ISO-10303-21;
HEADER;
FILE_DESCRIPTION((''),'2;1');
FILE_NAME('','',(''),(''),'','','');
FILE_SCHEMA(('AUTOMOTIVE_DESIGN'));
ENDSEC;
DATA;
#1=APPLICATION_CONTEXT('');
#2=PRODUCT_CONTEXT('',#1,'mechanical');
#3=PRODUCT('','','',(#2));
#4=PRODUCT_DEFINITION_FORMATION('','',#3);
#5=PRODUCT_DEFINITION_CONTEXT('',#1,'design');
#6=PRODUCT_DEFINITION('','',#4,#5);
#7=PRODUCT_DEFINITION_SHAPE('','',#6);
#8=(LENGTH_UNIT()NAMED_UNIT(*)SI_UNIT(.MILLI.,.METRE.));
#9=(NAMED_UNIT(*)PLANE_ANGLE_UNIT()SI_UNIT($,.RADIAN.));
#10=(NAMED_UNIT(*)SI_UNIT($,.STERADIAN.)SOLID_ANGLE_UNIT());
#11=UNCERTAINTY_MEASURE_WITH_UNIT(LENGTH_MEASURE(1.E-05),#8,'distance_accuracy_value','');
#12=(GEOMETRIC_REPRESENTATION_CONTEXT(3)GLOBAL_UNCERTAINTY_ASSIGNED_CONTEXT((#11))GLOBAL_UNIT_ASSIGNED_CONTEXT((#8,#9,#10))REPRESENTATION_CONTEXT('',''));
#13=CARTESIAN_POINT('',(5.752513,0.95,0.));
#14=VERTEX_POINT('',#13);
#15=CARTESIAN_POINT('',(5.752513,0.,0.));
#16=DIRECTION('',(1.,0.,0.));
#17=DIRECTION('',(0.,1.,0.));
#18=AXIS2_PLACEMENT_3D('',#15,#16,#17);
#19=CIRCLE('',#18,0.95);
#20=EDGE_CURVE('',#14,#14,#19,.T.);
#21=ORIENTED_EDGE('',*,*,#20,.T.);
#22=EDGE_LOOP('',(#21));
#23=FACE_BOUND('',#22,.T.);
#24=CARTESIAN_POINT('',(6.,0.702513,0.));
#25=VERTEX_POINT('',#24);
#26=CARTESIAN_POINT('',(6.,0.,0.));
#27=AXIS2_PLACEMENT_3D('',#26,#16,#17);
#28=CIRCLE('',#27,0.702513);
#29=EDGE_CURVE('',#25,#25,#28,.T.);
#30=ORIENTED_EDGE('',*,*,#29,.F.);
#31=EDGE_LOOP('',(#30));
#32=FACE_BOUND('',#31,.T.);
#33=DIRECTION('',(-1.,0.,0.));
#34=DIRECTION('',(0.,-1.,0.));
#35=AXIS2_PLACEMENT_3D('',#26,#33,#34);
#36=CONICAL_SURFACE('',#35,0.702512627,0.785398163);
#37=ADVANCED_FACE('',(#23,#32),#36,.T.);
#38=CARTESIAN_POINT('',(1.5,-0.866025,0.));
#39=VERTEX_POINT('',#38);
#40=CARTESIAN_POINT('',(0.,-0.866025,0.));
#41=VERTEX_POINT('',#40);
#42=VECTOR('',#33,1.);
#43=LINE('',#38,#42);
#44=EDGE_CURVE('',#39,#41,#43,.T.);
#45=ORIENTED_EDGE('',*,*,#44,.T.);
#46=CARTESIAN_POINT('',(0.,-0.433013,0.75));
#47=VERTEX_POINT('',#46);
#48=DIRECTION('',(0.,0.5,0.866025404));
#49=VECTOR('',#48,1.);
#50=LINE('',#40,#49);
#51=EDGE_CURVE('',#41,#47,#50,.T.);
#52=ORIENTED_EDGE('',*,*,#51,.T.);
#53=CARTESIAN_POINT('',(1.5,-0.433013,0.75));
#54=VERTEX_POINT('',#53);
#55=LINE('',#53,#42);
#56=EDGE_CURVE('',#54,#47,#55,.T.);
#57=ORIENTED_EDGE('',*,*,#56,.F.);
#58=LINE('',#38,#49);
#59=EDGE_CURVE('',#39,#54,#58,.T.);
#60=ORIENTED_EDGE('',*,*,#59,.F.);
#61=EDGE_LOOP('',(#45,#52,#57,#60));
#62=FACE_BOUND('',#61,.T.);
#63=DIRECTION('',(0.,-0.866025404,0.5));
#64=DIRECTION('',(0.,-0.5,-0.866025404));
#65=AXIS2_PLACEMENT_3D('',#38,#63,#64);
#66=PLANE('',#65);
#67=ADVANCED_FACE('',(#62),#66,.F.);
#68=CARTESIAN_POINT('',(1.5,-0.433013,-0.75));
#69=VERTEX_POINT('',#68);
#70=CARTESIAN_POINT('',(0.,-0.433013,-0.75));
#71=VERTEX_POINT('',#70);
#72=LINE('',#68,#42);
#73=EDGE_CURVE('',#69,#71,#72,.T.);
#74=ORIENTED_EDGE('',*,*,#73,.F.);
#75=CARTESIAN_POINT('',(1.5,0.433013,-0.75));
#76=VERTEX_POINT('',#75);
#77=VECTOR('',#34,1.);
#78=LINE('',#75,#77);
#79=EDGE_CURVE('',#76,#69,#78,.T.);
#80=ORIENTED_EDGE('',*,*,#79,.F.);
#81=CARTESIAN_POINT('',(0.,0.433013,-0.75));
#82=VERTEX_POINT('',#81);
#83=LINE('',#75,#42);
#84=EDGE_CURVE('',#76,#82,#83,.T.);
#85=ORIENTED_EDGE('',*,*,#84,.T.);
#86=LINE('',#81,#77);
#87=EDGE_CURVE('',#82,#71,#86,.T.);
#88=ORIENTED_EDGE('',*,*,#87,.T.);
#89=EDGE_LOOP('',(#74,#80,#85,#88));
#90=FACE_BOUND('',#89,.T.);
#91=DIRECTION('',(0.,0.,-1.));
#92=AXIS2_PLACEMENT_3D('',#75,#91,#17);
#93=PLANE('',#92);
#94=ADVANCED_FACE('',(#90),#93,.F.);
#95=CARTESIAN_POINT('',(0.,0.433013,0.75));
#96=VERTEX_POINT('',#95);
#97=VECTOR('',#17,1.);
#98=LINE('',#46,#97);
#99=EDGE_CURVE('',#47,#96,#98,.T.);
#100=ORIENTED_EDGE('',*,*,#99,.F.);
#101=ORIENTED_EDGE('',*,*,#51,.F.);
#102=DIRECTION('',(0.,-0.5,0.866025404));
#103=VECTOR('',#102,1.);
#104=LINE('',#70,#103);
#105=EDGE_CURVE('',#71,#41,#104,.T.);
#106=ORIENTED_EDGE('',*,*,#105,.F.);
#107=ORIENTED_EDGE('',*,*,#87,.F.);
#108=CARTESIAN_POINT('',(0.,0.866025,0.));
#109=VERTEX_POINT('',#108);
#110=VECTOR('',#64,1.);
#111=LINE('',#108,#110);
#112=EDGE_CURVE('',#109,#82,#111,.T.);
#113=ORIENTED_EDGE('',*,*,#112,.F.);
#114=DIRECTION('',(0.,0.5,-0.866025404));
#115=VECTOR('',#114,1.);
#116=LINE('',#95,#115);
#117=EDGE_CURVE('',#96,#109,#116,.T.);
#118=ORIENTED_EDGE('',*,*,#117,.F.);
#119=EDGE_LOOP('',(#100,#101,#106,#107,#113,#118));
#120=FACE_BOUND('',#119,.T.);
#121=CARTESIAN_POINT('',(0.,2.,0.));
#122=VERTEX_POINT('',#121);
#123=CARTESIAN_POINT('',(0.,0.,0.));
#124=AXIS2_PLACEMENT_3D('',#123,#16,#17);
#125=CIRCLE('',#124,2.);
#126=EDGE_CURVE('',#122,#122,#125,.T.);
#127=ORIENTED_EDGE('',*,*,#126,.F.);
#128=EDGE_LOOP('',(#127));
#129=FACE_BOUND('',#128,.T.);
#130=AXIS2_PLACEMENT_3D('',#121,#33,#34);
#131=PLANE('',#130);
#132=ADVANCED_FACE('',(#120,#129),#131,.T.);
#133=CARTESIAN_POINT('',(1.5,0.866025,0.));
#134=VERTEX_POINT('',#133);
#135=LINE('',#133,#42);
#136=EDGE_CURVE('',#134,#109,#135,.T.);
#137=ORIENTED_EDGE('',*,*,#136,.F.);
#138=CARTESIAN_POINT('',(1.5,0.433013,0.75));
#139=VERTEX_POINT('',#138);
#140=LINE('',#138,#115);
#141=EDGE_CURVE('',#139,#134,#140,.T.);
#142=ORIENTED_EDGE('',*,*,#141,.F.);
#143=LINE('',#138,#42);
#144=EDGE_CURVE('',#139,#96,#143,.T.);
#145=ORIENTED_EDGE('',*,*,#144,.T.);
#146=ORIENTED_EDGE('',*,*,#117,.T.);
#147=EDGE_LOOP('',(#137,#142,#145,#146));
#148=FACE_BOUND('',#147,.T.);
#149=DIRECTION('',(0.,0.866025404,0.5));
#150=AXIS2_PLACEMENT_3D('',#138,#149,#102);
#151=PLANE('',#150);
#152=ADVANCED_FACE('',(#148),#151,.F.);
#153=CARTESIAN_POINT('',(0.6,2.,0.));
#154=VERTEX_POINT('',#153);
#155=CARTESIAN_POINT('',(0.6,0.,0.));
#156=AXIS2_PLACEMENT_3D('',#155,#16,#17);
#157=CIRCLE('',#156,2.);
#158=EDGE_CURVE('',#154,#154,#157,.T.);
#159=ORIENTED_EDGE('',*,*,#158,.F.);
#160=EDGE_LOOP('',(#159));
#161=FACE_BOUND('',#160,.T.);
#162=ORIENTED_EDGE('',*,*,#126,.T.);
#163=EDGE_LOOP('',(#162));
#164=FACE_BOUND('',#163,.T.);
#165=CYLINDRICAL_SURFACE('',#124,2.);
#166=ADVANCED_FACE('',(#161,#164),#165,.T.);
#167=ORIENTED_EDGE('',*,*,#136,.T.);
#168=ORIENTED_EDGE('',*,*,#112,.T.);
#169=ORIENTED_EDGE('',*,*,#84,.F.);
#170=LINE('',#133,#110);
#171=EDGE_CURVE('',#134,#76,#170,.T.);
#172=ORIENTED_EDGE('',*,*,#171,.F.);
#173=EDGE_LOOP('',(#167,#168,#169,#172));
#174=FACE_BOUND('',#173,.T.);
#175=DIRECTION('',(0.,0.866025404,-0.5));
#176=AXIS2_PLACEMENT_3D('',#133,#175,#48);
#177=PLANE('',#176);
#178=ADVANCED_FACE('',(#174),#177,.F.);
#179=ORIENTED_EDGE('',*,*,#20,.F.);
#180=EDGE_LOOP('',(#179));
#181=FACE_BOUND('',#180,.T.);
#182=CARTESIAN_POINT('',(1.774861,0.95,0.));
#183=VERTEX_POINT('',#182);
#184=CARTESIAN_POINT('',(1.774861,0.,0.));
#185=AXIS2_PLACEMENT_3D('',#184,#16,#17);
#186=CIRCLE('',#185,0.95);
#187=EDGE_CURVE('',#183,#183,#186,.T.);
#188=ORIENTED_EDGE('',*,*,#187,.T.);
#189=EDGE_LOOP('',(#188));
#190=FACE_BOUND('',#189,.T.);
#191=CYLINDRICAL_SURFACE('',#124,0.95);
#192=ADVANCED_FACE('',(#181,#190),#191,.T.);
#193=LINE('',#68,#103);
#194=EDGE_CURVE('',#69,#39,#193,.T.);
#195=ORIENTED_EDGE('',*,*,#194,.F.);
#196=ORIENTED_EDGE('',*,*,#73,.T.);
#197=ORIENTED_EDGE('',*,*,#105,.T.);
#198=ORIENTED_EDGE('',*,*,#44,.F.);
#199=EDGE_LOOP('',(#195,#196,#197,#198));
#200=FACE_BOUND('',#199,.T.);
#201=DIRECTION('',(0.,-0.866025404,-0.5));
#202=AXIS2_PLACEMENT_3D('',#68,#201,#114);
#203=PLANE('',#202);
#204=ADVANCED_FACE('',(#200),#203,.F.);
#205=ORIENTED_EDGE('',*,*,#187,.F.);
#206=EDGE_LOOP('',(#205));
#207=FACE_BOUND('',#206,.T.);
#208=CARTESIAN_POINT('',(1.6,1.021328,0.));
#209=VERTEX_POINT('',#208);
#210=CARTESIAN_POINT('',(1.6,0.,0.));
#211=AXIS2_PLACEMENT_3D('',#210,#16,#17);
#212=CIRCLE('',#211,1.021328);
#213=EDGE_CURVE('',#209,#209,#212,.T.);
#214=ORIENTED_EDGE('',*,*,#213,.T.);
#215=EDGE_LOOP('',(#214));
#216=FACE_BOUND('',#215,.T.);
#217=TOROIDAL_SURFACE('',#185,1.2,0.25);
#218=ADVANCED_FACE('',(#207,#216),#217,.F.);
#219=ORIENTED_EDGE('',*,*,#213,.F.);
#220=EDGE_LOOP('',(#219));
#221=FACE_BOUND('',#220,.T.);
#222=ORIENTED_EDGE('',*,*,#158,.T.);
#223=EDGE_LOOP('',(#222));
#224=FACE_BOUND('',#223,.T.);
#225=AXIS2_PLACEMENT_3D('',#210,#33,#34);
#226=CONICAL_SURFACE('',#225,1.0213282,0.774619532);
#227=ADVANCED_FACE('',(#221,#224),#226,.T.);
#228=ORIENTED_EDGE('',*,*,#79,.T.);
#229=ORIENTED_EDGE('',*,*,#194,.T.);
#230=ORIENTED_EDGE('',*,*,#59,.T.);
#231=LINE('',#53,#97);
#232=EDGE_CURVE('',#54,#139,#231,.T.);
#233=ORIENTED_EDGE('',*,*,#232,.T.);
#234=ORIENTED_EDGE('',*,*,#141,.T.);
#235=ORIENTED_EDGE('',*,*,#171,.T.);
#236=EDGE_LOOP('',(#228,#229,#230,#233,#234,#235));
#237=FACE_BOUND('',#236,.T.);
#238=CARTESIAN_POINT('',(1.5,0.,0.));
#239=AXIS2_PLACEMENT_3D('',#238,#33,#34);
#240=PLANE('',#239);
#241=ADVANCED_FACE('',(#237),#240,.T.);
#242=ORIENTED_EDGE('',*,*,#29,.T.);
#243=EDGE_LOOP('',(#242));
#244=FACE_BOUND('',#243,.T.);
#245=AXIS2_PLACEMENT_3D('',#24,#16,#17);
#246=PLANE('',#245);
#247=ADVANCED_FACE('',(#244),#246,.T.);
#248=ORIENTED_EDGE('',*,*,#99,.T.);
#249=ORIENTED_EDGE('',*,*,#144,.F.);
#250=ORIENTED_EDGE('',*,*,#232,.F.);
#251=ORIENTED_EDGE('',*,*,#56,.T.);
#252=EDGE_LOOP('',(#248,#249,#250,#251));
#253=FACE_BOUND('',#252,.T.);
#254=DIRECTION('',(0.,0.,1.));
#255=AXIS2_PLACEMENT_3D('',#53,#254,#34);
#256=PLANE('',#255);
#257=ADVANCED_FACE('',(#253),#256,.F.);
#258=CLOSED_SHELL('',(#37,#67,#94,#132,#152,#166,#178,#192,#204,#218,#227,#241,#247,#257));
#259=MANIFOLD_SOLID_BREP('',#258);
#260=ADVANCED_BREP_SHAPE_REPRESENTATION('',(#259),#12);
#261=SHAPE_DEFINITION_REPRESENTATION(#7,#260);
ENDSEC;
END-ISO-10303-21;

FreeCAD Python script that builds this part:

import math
import FreeCAD as App
import Part
import Sketcher
Q = App.Units.Quantity

doc = App.newDocument("Part")
body = doc.addObject("PartDesign::Body", "Body")

sketch1 = doc.addObject("Sketcher::SketchObject", "Sketch")
body.addObject(sketch1)
sketch1.AttachmentSupport = (doc.XY_Plane, [""])
sketch1.MapMode = "FlatFace"
sketch1.addGeometry([
    Part.LineSegment(App.Vector(5.752513, 0.95, 0), App.Vector(1.774861, 0.95, 0)),
    Part.ArcOfCircle(Part.Circle(App.Vector(1.774861, 1.2, 0), App.Vector(0, 0, 1), 0.25), math.radians(-134.382431), math.radians(-90)),
    Part.LineSegment(App.Vector(1.6, 1.021328, 0), App.Vector(0.6, 2, 0)),
    Part.LineSegment(App.Vector(0.6, 2, 0), App.Vector(0, 2, 0)),
    Part.LineSegment(App.Vector(0, 2, 0), App.Vector(0, 0, 0)),
    Part.LineSegment(App.Vector(0, 0, 0), App.Vector(6, 0, 0)),
    Part.LineSegment(App.Vector(6, 0, 0), App.Vector(6, 0.702513, 0)),
    Part.LineSegment(App.Vector(6, 0.702513, 0), App.Vector(5.752513, 0.95, 0)),
], False)
sketch1.addConstraint([
    Sketcher.Constraint("Tangent", 0, 2, 1, 2),
    Sketcher.Constraint("Tangent", 1, 1, 2, 1),
    Sketcher.Constraint("Coincident", 2, 2, 3, 1),
    Sketcher.Constraint("Coincident", 3, 2, 4, 1),
    Sketcher.Constraint("Coincident", 4, 2, 5, 1),
    Sketcher.Constraint("Coincident", 5, 2, 6, 1),
    Sketcher.Constraint("Coincident", 6, 2, 7, 1),
    Sketcher.Constraint("Coincident", 7, 2, 0, 1),
    Sketcher.Constraint("Horizontal", 0),
    Sketcher.Constraint("Horizontal", 3),
    Sketcher.Constraint("Vertical", 4),
    Sketcher.Constraint("Horizontal", 5),
    Sketcher.Constraint("Vertical", 6),
    Sketcher.Constraint("Coincident", 4, 2, -1, 1),
    Sketcher.Constraint("DistanceX", 5, 1, 5, 2, Q("6 mm")),
    Sketcher.Constraint("DistanceY", 4, 2, 4, 1, Q("2 mm")),
    Sketcher.Constraint("Angle", 7, Q("135 deg")),
    Sketcher.Constraint("Radius", 1, Q("0.25 mm")),
    Sketcher.Constraint("DistanceX", 3, 2, 3, 1, Q("0.6 mm")),
    Sketcher.Constraint("DistanceX", 2, 2, 1, 1, Q("1 mm")),
    Sketcher.Constraint("DistanceY", -1, 1, 1, 3, Q("1.2 mm")),
    Sketcher.Constraint("Distance", 7, Q("0.35 mm")),
])
revolution = doc.addObject("PartDesign::Revolution", "Revolution")
body.addObject(revolution)
revolution.Profile = sketch1
revolution.ReferenceAxis = (sketch1, ["H_Axis"])
revolution.Angle = 360

sketch2 = doc.addObject("Sketcher::SketchObject", "Sketch001")
body.addObject(sketch2)
sketch2.AttachmentSupport = (doc.YZ_Plane, [""])
sketch2.MapMode = "FlatFace"
sketch2.addGeometry([
    Part.LineSegment(App.Vector(0.433013, 0.75, 0), App.Vector(0.866025, 0, 0)),
    Part.LineSegment(App.Vector(0.866025, 0, 0), App.Vector(0.433013, -0.75, 0)),
    Part.LineSegment(App.Vector(0.433013, -0.75, 0), App.Vector(-0.433013, -0.75, 0)),
    Part.LineSegment(App.Vector(-0.433013, -0.75, 0), App.Vector(-0.866025, 0, 0)),
    Part.LineSegment(App.Vector(-0.866025, 0, 0), App.Vector(-0.433013, 0.75, 0)),
    Part.LineSegment(App.Vector(-0.433013, 0.75, 0), App.Vector(0.433013, 0.75, 0)),
], False)
sketch2.addConstraint([
    Sketcher.Constraint("Coincident", 0, 2, 1, 1),
    Sketcher.Constraint("Coincident", 1, 2, 2, 1),
    Sketcher.Constraint("Coincident", 2, 2, 3, 1),
    Sketcher.Constraint("Coincident", 3, 2, 4, 1),
    Sketcher.Constraint("Coincident", 4, 2, 5, 1),
    Sketcher.Constraint("Coincident", 5, 2, 0, 1),
    Sketcher.Constraint("Horizontal", 2),
    Sketcher.Constraint("Horizontal", 5),
    Sketcher.Constraint("Symmetric", 0, 2, 3, 2, -1, 1),
    Sketcher.Constraint("Symmetric", 1, 2, 4, 2, -1, 1),
    Sketcher.Constraint("PointOnObject", 0, 2, -1),
    Sketcher.Constraint("Parallel", 0, 3),
    Sketcher.Constraint("Vertical", 2, 2, 4, 2),
    Sketcher.Constraint("Angle", 0, Q("-60 deg")),
    Sketcher.Constraint("DistanceY", 2, 2, 4, 2, Q("1.5 mm")),
    Sketcher.Constraint("DistanceX", 2, 2, 2, 1, Q("0.866025 mm")),
])
pocket1 = doc.addObject("PartDesign::Pocket", "Pocket")
body.addObject(pocket1)
pocket1.Profile = sketch2
pocket1.Length = 1.5
pocket1.Reversed = True

doc.recompute()
